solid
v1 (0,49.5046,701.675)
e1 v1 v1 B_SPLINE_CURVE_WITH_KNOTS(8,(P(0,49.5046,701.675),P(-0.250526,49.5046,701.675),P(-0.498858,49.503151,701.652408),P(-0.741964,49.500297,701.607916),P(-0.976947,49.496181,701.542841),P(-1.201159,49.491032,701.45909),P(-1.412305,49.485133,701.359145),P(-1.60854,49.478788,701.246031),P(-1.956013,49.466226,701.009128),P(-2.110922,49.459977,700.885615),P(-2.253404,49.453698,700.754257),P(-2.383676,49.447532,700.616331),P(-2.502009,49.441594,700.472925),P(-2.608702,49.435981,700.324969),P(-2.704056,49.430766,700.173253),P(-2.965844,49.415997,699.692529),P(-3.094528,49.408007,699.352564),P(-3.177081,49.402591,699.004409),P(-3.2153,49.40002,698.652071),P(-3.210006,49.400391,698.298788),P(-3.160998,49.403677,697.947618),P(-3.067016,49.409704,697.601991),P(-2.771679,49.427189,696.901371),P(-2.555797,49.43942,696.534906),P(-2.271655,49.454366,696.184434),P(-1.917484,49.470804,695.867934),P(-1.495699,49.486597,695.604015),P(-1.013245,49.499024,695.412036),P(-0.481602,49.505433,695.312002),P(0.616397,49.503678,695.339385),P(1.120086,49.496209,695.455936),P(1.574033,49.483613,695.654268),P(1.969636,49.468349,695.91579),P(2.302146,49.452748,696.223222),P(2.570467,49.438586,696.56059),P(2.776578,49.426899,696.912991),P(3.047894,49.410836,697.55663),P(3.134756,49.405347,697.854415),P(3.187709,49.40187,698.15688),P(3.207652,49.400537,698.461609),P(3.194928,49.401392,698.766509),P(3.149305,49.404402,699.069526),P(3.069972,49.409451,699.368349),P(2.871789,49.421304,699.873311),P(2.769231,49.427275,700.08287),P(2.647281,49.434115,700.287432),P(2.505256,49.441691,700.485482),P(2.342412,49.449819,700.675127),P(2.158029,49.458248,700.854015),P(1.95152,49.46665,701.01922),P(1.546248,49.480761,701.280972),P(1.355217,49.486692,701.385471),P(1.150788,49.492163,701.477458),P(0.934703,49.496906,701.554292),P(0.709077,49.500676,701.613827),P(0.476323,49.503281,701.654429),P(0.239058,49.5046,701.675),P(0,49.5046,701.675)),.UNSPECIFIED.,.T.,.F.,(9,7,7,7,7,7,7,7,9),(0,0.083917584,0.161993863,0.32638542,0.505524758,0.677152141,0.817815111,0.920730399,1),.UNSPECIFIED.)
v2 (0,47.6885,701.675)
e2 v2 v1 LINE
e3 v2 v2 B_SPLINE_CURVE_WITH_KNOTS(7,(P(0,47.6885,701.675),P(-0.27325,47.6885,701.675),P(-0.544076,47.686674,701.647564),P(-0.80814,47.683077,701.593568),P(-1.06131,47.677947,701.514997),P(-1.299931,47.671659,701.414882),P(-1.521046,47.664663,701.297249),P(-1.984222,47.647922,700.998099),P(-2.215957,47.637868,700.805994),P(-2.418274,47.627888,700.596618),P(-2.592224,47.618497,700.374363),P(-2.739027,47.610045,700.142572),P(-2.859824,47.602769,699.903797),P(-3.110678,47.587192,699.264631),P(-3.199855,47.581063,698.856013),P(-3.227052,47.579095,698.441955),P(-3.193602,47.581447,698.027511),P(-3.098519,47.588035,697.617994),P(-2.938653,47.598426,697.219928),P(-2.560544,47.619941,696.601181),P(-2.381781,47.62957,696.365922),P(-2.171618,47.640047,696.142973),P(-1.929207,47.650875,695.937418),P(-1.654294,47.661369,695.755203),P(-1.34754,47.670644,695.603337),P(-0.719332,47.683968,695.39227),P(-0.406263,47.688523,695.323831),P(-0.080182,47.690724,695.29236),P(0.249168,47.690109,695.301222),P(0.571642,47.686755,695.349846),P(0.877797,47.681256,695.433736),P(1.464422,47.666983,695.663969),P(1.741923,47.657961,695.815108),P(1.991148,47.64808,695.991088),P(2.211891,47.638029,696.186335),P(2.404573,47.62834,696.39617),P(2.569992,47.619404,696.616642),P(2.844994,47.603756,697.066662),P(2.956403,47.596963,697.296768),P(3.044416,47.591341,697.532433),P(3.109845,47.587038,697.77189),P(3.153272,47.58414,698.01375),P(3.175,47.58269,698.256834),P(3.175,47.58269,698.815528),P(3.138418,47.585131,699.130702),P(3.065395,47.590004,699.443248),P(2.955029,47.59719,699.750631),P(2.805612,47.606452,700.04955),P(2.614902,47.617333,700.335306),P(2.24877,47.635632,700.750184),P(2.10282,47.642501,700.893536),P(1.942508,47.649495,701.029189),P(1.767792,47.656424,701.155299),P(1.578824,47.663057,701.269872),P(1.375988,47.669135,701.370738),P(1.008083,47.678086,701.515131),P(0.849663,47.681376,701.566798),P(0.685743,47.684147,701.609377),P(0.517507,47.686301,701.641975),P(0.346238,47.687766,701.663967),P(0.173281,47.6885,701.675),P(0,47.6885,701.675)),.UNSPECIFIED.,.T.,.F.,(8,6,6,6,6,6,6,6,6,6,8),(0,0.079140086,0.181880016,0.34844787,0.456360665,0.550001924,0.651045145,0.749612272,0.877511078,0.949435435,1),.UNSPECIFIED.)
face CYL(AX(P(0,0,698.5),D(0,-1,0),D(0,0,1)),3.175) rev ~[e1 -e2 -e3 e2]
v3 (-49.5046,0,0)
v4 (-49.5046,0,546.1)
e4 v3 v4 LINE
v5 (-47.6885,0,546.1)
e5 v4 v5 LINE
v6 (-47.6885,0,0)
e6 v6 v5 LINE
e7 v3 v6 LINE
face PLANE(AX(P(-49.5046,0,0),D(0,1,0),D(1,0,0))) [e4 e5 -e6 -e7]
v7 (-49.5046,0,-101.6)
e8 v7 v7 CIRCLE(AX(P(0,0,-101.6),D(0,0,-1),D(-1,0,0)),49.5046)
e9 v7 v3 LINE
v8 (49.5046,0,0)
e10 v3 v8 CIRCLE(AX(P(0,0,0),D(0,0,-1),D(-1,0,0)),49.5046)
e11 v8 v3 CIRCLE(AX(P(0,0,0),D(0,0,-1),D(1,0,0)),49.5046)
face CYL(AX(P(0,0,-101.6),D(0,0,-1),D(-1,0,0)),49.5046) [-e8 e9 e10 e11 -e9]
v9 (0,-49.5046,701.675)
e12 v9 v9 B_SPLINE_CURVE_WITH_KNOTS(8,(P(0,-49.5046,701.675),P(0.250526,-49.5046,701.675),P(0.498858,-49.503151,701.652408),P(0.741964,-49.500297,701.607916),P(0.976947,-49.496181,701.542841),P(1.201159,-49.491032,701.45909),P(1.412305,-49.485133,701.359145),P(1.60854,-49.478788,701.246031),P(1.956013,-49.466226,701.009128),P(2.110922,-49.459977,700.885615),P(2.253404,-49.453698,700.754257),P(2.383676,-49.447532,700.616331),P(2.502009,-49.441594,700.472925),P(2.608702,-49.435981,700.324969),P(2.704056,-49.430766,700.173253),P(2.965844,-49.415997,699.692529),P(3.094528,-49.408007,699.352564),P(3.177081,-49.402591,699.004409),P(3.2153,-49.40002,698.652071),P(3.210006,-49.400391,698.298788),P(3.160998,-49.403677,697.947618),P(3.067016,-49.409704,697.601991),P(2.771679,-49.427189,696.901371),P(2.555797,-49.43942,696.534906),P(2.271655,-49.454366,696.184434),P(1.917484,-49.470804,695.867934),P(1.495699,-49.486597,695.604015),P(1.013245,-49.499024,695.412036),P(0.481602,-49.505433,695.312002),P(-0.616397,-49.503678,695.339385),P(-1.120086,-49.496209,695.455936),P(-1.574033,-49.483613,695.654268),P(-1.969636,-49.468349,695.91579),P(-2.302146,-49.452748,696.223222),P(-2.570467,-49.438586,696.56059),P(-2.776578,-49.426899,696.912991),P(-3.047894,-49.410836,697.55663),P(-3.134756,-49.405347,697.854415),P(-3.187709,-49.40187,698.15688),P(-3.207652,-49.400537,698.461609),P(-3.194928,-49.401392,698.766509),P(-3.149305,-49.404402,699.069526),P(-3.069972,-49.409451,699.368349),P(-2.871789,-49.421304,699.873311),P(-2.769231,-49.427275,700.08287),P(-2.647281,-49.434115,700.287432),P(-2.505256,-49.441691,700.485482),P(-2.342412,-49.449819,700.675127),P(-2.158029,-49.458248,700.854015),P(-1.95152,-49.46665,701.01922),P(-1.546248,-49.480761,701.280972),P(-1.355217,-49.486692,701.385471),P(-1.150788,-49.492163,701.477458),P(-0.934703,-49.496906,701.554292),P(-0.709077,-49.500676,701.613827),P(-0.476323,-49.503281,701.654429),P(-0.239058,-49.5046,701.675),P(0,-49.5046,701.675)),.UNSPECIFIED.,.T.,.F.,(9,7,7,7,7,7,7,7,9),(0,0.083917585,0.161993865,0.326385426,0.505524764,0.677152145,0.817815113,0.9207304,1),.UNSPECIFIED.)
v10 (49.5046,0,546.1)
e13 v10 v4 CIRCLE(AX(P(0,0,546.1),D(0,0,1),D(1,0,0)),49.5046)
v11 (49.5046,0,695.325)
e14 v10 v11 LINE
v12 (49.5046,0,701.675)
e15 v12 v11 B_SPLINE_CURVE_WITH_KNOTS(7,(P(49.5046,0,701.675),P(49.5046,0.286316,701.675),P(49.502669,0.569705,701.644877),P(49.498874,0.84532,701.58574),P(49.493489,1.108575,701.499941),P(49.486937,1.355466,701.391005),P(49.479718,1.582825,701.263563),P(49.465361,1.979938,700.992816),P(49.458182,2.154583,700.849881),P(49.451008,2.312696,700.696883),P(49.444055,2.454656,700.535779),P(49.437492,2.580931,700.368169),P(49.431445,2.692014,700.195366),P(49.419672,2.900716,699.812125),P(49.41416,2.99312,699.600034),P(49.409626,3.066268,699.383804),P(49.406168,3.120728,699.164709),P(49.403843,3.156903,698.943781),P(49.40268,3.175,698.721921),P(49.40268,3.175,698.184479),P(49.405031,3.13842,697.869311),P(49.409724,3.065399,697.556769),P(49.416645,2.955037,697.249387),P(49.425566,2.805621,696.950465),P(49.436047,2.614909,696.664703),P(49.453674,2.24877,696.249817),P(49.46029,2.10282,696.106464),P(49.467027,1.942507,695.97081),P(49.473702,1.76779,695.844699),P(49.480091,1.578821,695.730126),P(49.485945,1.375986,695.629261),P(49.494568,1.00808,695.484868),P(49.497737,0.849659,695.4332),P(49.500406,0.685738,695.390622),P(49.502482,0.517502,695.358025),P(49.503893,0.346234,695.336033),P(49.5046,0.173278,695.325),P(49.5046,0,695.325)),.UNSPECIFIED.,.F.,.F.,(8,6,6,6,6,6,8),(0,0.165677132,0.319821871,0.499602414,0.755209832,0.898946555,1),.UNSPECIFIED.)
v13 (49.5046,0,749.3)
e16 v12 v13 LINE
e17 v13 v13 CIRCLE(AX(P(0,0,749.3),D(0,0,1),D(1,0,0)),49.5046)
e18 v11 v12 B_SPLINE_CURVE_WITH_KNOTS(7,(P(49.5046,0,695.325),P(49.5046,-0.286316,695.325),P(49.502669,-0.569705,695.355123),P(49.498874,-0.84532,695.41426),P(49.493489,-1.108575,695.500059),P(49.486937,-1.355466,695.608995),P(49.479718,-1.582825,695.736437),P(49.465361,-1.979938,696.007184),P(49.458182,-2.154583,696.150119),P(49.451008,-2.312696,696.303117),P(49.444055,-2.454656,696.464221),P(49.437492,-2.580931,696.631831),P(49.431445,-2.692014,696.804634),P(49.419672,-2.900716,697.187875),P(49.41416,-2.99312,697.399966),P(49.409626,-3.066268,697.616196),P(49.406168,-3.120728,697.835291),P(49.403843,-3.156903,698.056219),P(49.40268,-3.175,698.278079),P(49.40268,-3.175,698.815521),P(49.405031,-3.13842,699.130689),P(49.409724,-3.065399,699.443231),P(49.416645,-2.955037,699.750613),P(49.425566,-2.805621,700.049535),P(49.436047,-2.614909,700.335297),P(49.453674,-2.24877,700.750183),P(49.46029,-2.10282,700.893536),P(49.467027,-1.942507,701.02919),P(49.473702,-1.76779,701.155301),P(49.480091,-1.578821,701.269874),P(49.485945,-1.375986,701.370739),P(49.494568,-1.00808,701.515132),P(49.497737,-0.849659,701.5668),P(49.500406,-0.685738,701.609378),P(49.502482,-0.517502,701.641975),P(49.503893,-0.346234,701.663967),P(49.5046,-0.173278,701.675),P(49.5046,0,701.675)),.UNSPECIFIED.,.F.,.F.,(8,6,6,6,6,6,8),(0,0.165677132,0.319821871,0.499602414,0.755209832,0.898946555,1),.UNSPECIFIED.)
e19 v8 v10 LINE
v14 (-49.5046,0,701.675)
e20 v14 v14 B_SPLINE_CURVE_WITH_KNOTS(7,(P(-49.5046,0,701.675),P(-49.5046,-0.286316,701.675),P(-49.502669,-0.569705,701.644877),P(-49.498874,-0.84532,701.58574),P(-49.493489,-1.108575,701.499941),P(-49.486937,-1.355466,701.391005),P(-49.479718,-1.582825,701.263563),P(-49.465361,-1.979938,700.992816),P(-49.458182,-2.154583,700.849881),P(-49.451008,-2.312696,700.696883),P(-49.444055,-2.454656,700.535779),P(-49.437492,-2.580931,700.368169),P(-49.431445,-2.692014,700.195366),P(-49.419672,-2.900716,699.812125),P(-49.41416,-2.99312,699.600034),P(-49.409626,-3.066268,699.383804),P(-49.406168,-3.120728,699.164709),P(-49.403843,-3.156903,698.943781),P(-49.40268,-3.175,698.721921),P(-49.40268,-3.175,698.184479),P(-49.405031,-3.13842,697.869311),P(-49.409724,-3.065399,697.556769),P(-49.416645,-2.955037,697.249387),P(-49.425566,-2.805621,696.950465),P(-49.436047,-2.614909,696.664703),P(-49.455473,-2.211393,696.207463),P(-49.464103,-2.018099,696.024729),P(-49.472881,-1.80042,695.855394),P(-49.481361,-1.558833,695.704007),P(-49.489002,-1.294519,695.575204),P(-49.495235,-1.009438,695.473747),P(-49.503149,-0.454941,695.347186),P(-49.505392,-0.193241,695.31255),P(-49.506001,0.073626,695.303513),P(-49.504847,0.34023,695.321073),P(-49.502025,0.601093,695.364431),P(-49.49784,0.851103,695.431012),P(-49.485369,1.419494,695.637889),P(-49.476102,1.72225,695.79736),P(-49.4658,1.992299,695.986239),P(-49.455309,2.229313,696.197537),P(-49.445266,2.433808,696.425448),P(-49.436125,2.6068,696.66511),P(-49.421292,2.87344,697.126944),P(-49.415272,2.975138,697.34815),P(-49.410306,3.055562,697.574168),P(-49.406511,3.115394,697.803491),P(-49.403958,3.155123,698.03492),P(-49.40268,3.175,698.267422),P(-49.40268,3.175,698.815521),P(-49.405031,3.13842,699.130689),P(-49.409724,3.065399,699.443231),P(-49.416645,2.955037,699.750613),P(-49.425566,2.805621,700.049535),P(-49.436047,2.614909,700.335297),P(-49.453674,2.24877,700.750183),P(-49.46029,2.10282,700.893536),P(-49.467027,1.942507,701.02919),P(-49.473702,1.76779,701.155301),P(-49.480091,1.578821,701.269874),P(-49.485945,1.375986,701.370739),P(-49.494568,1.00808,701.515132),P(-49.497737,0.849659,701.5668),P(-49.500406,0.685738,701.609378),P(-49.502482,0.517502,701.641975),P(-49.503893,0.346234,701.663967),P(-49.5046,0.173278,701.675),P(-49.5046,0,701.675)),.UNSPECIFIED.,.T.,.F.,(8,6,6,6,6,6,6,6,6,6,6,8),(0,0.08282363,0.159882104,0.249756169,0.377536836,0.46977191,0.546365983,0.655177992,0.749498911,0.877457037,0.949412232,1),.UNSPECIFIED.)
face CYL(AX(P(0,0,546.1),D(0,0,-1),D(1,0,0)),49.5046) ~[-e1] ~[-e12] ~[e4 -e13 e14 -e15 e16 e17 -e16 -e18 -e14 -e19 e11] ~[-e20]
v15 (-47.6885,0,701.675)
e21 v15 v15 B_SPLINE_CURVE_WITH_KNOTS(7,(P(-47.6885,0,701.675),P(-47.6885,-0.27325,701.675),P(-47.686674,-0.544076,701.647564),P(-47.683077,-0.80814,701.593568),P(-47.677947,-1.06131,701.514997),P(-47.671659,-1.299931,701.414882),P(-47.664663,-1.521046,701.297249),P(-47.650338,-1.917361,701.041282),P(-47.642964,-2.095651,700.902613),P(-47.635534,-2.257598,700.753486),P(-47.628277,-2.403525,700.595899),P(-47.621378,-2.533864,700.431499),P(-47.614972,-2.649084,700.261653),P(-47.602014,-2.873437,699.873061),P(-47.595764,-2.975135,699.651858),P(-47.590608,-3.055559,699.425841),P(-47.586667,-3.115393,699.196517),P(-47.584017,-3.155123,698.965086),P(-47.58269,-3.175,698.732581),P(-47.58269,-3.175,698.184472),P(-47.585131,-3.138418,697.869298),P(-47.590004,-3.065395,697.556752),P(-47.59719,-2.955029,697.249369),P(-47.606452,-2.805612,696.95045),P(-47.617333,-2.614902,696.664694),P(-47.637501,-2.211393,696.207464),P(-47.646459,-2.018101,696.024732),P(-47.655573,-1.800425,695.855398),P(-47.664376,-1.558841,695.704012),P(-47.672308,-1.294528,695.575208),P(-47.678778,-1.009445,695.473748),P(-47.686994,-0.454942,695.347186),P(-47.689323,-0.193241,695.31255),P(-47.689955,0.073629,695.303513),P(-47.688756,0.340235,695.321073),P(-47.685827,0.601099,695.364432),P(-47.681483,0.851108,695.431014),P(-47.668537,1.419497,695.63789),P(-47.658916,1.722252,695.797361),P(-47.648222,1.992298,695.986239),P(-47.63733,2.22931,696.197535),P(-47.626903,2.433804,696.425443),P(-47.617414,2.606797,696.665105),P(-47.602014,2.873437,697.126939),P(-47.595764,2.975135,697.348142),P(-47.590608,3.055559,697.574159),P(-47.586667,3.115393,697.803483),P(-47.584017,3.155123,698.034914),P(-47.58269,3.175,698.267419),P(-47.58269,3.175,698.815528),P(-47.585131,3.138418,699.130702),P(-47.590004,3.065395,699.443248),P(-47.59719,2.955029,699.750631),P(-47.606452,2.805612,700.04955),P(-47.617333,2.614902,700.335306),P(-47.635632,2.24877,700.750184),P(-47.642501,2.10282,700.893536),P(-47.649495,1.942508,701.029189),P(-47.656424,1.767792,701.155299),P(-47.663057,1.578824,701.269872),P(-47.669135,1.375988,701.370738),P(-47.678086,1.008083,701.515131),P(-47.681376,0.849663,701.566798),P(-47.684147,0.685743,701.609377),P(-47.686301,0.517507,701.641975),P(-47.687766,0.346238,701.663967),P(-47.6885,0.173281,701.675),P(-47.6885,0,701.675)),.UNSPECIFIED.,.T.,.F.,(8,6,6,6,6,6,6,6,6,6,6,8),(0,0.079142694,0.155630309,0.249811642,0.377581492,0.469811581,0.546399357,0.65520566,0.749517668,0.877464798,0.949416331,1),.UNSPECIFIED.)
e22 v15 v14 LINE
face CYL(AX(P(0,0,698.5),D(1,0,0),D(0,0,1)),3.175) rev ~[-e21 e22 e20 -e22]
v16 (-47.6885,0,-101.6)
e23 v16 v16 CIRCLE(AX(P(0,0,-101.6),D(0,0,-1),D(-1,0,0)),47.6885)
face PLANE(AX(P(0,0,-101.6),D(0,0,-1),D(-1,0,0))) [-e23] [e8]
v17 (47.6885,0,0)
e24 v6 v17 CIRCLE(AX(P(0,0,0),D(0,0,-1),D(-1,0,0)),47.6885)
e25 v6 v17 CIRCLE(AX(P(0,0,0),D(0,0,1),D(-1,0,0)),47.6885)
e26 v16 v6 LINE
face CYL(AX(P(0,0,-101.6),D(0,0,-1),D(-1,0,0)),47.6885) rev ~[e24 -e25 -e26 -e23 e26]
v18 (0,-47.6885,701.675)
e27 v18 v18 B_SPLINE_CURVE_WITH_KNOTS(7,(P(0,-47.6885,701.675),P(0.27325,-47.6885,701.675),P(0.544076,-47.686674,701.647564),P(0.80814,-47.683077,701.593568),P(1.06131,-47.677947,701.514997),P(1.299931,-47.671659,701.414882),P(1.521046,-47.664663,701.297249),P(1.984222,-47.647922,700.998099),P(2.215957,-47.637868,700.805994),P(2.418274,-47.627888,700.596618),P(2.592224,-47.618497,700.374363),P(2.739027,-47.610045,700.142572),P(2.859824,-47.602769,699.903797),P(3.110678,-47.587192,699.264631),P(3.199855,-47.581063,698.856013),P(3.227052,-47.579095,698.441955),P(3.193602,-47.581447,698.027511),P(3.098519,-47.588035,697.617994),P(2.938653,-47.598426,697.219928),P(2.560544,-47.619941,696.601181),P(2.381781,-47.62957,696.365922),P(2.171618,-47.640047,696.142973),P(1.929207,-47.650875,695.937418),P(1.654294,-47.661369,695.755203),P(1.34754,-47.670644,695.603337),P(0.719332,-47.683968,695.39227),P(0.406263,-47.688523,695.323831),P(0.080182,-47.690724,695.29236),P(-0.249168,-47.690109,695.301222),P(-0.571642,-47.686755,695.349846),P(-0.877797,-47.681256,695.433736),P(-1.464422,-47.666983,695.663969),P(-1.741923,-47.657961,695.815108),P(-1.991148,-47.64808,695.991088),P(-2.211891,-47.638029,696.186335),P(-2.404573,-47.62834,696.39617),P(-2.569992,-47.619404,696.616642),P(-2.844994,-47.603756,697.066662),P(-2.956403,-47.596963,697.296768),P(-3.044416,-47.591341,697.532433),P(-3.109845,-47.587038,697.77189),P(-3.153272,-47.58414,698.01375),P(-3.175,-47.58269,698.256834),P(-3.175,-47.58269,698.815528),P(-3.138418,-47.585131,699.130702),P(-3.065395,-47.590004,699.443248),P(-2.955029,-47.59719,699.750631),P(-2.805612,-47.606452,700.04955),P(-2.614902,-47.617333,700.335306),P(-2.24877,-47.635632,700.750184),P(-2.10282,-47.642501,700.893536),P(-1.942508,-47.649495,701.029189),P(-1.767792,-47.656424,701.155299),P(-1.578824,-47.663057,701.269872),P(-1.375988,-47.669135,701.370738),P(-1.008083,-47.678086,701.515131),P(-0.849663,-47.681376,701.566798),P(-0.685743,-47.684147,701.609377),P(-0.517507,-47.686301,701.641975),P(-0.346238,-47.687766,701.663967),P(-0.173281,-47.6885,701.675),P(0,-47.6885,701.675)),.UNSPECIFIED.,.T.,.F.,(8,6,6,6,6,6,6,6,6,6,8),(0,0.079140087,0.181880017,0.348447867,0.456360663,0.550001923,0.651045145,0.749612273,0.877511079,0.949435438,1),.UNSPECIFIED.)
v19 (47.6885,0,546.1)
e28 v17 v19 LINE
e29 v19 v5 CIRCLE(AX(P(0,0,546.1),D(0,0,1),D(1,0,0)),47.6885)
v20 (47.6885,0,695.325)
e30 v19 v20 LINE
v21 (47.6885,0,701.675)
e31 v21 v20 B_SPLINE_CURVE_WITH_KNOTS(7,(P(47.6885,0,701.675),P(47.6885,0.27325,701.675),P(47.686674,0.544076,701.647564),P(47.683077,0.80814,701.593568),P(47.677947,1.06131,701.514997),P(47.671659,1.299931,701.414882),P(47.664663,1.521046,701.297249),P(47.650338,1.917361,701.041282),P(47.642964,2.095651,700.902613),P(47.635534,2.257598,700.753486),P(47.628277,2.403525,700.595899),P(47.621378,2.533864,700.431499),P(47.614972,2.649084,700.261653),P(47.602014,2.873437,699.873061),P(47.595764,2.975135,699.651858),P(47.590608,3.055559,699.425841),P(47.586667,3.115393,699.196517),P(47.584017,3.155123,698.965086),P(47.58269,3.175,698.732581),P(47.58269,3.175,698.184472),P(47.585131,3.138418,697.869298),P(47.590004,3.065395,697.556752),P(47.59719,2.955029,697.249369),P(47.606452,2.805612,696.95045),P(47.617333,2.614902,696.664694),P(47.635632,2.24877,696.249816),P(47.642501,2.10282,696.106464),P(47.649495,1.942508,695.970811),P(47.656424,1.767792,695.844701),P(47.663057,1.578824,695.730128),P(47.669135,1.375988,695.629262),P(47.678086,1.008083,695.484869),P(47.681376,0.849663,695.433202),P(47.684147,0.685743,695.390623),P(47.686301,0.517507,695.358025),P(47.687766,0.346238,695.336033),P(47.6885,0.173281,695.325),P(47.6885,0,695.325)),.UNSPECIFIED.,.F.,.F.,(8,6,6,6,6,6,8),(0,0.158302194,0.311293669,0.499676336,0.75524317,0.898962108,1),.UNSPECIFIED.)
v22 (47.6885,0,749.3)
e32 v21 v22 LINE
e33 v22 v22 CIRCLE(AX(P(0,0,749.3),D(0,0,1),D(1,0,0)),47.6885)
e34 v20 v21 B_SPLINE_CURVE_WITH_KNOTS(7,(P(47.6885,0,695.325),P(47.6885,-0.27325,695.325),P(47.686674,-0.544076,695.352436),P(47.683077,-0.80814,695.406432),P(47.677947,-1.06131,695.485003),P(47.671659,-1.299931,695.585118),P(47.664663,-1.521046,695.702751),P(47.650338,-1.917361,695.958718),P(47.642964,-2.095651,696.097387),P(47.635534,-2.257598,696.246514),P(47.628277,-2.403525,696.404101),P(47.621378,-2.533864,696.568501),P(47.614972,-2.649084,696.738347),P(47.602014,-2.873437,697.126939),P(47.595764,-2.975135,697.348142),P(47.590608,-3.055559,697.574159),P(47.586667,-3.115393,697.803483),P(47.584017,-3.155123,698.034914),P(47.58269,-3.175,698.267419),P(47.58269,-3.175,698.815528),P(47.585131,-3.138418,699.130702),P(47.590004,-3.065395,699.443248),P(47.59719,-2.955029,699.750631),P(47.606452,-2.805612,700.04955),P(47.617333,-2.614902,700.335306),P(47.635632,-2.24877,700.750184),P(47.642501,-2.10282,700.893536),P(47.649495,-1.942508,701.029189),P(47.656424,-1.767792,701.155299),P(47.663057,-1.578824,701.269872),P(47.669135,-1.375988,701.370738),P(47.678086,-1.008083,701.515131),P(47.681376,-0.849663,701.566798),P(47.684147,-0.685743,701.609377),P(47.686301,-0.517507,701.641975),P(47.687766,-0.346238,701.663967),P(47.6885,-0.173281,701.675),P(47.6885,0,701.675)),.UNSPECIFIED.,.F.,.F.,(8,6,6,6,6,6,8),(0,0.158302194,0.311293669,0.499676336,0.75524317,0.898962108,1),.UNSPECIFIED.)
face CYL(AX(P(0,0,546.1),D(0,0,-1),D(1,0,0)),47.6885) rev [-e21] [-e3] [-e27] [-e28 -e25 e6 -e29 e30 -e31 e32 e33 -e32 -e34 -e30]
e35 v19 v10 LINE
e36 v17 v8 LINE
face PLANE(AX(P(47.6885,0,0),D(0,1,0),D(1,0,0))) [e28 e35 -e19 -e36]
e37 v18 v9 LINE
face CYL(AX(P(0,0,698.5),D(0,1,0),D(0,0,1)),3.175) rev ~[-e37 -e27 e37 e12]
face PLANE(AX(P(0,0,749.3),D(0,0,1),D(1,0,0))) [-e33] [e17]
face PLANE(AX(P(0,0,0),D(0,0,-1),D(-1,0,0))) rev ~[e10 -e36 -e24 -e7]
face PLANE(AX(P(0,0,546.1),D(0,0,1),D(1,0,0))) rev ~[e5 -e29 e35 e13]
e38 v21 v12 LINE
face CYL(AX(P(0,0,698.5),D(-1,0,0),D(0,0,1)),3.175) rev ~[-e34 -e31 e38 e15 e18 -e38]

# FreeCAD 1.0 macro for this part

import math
import FreeCAD as App
import Part
import Sketcher

V = App.Vector
Q = App.Units.Quantity

doc = App.newDocument("Part")
body = doc.addObject("PartDesign::Body", "Body")

# Sketch on XY plane
sketch1 = body.newObject("Sketcher::SketchObject", "Sketch")
sketch1.AttachmentSupport = (doc.getObject("XY_Plane"), [""])
sketch1.MapMode = "FlatFace"
sketch1.addGeometry([
    Part.LineSegment(V(-47.7, 0, 0), V(-49.5, 0, 0)),
    Part.ArcOfCircle(Part.Circle(V(0, 0, 0), V(0, 0, 1), 49.5), math.radians(180), math.radians(360)),
    Part.LineSegment(V(49.5, 0, 0), V(47.7, 0, 0)),
    Part.ArcOfCircle(Part.Circle(V(0, 0, 0), V(0, 0, 1), 47.7), math.radians(180), math.radians(360)),
], False)
sketch1.addConstraint([
    Sketcher.Constraint("Coincident", 0, 2, 1, 1),
    Sketcher.Constraint("Coincident", 1, 2, 2, 1),
    Sketcher.Constraint("Coincident", 2, 2, 3, 2),
    Sketcher.Constraint("Coincident", 3, 1, 0, 1),
    Sketcher.Constraint("Horizontal", 0),
    Sketcher.Constraint("Horizontal", 2),
    Sketcher.Constraint("Coincident", 1, 3, -1, 1),
    Sketcher.Constraint("Coincident", 3, 3, -1, 1),
    Sketcher.Constraint("PointOnObject", 0, 2, -1),
    Sketcher.Constraint("PointOnObject", 1, 2, -1),
    Sketcher.Constraint("Radius", 1, Q("1.949 in")),
    Sketcher.Constraint("Radius", 3, Q("1.8775 in")),
])
pad1 = body.newObject("PartDesign::Pad", "Pad")
pad1.Profile = sketch1
pad1.Length = Q("21.5 in")

# Sketch on XY plane
sketch2 = body.newObject("Sketcher::SketchObject", "Sketch001")
sketch2.AttachmentSupport = (doc.getObject("XY_Plane"), [""])
sketch2.MapMode = "FlatFace"
sketch2.AttachmentOffset = App.Placement(V(0, 0, 21.5 * 25.4), App.Rotation())
sketch2.addGeometry([
    Part.Circle(V(0, 0, 0), V(0, 0, 1), 50),
    Part.Circle(V(0, 0, 0), V(0, 0, 1), 48),
], False)
sketch2.addConstraint([
    Sketcher.Constraint("Coincident", 0, 3, -1, 1),
    Sketcher.Constraint("Coincident", 1, 3, -1, 1),
    Sketcher.Constraint("Diameter", 0, Q("3.898 in")),
    Sketcher.Constraint("Diameter", 1, Q("3.755 in")),
])
pad2 = body.newObject("PartDesign::Pad", "Pad001")
pad2.Profile = sketch2
pad2.Length = Q("8 in")

# Sketch on XY plane
sketch3 = body.newObject("Sketcher::SketchObject", "Sketch002")
sketch3.AttachmentSupport = (doc.getObject("XY_Plane"), [""])
sketch3.MapMode = "FlatFace"
sketch3.AttachmentOffset = App.Placement(V(0, 0, -4 * 25.4), App.Rotation())
sketch3.addGeometry([
    Part.Circle(V(0, 0, 0), V(0, 0, 1), 50),
    Part.Circle(V(0, 0, 0), V(0, 0, 1), 48),
], False)
sketch3.addConstraint([
    Sketcher.Constraint("Coincident", 0, 3, -1, 1),
    Sketcher.Constraint("Coincident", 1, 3, -1, 1),
    Sketcher.Constraint("Diameter", 0, Q("3.898 in")),
    Sketcher.Constraint("Diameter", 1, Q("3.755 in")),
])
pad3 = body.newObject("PartDesign::Pad", "Pad002")
pad3.Profile = sketch3
pad3.Length = Q("4 in")

# Sketch on XZ plane
sketch4 = body.newObject("Sketcher::SketchObject", "Sketch003")
sketch4.AttachmentSupport = (doc.getObject("XZ_Plane"), [""])
sketch4.MapMode = "FlatFace"
sketch4.addGeometry(Part.Circle(V(0, 698.5, 0), V(0, 0, 1), 3.2), False)
sketch4.addConstraint([
    Sketcher.Constraint("PointOnObject", 0, 3, -2),
    Sketcher.Constraint("Diameter", 0, Q("0.25 in")),
    Sketcher.Constraint("DistanceY", -1, 1, 0, 3, Q("27.5 in")),
])
pocket1 = body.newObject("PartDesign::Pocket", "Pocket")
pocket1.Profile = sketch4
pocket1.Type = "ThroughAll"
pocket1.Reversed = True
doc.recompute()

polarpattern = body.newObject("PartDesign::PolarPattern", "PolarPattern")
polarpattern.Originals = [pocket1]
polarpattern.Axis = (doc.getObject("Z_Axis"), [""])
polarpattern.Angle = 360
polarpattern.Occurrences = 4
body.Tip = polarpattern

doc.recompute()
